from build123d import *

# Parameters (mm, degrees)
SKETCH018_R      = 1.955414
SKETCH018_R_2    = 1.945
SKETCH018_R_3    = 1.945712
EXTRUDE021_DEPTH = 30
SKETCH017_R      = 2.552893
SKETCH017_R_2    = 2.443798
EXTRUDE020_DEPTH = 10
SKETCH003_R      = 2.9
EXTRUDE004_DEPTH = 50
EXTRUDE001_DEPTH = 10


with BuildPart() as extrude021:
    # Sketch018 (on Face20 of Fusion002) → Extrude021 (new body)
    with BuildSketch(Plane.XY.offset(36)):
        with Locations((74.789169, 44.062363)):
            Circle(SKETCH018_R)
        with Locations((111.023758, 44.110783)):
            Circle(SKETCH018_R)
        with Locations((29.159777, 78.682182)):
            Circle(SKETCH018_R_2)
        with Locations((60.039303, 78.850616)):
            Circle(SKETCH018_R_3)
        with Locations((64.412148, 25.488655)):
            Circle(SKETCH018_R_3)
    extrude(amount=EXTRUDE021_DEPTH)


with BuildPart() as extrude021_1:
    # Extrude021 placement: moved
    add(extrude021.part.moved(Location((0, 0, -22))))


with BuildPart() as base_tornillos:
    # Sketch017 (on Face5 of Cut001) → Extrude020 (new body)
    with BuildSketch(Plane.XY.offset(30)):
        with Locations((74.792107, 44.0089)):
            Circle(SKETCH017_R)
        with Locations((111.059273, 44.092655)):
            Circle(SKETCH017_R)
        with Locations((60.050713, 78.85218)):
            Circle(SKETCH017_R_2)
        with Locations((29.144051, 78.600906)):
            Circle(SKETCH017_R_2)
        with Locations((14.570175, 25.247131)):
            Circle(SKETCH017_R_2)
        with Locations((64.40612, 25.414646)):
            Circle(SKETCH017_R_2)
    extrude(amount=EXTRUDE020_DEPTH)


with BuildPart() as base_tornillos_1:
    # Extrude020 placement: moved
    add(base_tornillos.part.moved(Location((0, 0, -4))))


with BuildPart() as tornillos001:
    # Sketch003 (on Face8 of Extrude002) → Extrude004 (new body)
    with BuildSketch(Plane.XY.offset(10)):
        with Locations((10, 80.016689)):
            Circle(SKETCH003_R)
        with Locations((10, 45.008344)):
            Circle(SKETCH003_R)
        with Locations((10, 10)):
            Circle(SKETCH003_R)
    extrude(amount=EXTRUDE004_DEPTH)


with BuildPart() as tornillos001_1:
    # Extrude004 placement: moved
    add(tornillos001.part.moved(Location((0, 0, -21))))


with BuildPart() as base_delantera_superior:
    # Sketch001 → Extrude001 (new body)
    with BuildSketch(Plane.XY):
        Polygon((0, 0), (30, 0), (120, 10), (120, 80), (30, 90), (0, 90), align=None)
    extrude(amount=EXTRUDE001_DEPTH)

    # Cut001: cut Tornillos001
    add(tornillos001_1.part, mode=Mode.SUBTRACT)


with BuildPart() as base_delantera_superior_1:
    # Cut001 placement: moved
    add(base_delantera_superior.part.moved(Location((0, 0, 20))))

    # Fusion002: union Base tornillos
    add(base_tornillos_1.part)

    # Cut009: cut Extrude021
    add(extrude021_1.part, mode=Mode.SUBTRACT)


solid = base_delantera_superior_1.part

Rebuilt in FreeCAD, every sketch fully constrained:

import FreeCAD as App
import Part
import Sketcher
Q = App.Units.Quantity


def add_polygon(sketch, points):
    """Adds a closed chain of lines whose ends are joined by coincident constraints."""
    first, n = sketch.GeometryCount, len(points)
    for a, b in zip(points, points[1:] + points[:1]):
        sketch.addGeometry(Part.LineSegment(App.Vector(*a, 0), App.Vector(*b, 0)), False)
    for i in range(n):
        sketch.addConstraint(Sketcher.Constraint("Coincident", first + i, 2, first + (i + 1) % n, 1))

doc = App.newDocument("Part")
params = doc.addObject("Spreadsheet::Sheet", "Params")
for row, (alias, value) in enumerate([
    ("sketch1_diameter", "3.89 mm"),
    ("pad1_length", "30 mm"),
    ("pad2_length", "10 mm"),
    ("sketch3_diameter", "5.8 mm"),
    ("pad3_length", "50 mm"),
    ("sketch4_width", "30 mm"),
    ("sketch4_height", "70 mm"),
    ("sketch4_height2", "90 mm"),
    ("pad4_length", "10 mm"),
], start=1):
    params.set(f"A{row}", alias)
    params.set(f"B{row}", "=" + value)
    params.setAlias(f"B{row}", alias)

body = doc.addObject("PartDesign::Body", "Body")
body.AllowCompound = True

sketch1 = body.newObject("Sketcher::SketchObject", "Sketch")
sketch1.AttachmentSupport = (doc.getObject("XY_Plane"), [""])
sketch1.MapMode = "FlatFace"
sketch1.AttachmentOffset = App.Placement(App.Vector(0, 0, 36), App.Rotation())
sketch1.addGeometry([
    Part.Circle(App.Vector(74.789169, 44.062363, 0), App.Vector(0, 0, 1), 1.955414),
    Part.Circle(App.Vector(111.023758, 44.110783, 0), App.Vector(0, 0, 1), 1.955414),
    Part.Circle(App.Vector(29.159777, 78.682182, 0), App.Vector(0, 0, 1), 1.945),
    Part.Circle(App.Vector(60.039303, 78.850616, 0), App.Vector(0, 0, 1), 1.945712),
    Part.Circle(App.Vector(64.412148, 25.488655, 0), App.Vector(0, 0, 1), 1.945712),
], False)
sketch1.addConstraint([
    Sketcher.Constraint("Equal", 0, 1),
    Sketcher.Constraint("Equal", 3, 4),
    Sketcher.Constraint("Diameter", 2, Q("3.89 mm")),
    Sketcher.Constraint("Diameter", 0, Q("3.910828 mm")),
    Sketcher.Constraint("Diameter", 3, Q("3.891424 mm")),
    Sketcher.Constraint("DistanceY", 1, 3, 2, 3, Q("34.571399 mm")),
    Sketcher.Constraint("DistanceX", -1, 1, 0, 3, Q("74.789169 mm")),
    Sketcher.Constraint("DistanceX", -1, 1, 1, 3, Q("111.023758 mm")),
    Sketcher.Constraint("DistanceY", -1, 1, 2, 3, Q("78.682182 mm")),
    Sketcher.Constraint("DistanceX", -1, 1, 4, 3, Q("64.412148 mm")),
    Sketcher.Constraint("DistanceY", 0, 3, 1, 3, Q("0.04842 mm")),
    Sketcher.Constraint("DistanceX", 2, 3, 1, 3, Q("81.863981 mm")),
    Sketcher.Constraint("DistanceY", 4, 3, 3, 3, Q("53.361961 mm")),
    Sketcher.Constraint("DistanceX", -1, 1, 3, 3, Q("60.039303 mm")),
    Sketcher.Constraint("DistanceY", -1, 1, 3, 3, Q("78.850616 mm")),
])
sketch1.setExpression("Constraints[2]", "Params.sketch1_diameter")
pad1 = body.newObject("PartDesign::Pad", "Pad")
pad1.Profile = sketch1
pad1.setExpression("Length", "Params.pad1_length")
body2 = doc.addObject("PartDesign::Body", "Body001")
body2.AllowCompound = True
doc.recompute()

body.Placement = App.Placement(App.Vector(0, 0, -22), App.Rotation(App.Vector(0, 0, 1), 0))
boolean = body2.newObject("PartDesign::Boolean", "Boolean")
boolean.Type = "Fuse"
boolean.addObjects([body])
body3 = doc.addObject("PartDesign::Body", "Body002")
body3.AllowCompound = True

sketch2 = body3.newObject("Sketcher::SketchObject", "Sketch001")
sketch2.AttachmentSupport = (doc.getObject("XY_Plane002"), [""])
sketch2.MapMode = "FlatFace"
sketch2.AttachmentOffset = App.Placement(App.Vector(0, 0, 30), App.Rotation())
sketch2.addGeometry([
    Part.Circle(App.Vector(74.792107, 44.0089, 0), App.Vector(0, 0, 1), 2.552893),
    Part.Circle(App.Vector(111.059273, 44.092655, 0), App.Vector(0, 0, 1), 2.552893),
    Part.Circle(App.Vector(60.050713, 78.85218, 0), App.Vector(0, 0, 1), 2.443798),
    Part.Circle(App.Vector(29.144051, 78.600906, 0), App.Vector(0, 0, 1), 2.443798),
    Part.Circle(App.Vector(14.570175, 25.247131, 0), App.Vector(0, 0, 1), 2.443798),
    Part.Circle(App.Vector(64.40612, 25.414646, 0), App.Vector(0, 0, 1), 2.443798),
], False)
sketch2.addConstraint([
    Sketcher.Constraint("Equal", 0, 1),
    Sketcher.Constraint("Equal", 2, 3),
    Sketcher.Constraint("Equal", 3, 4),
    Sketcher.Constraint("Equal", 4, 5),
    Sketcher.Constraint("Diameter", 0, Q("5.105786 mm")),
    Sketcher.Constraint("Diameter", 2, Q("4.887596 mm")),
    Sketcher.Constraint("DistanceY", -1, 1, 0, 3, Q("44.0089 mm")),
    Sketcher.Constraint("DistanceX", 4, 3, 1, 3, Q("96.489098 mm")),
    Sketcher.Constraint("DistanceY", -1, 1, 2, 3, Q("78.85218 mm")),
    Sketcher.Constraint("DistanceX", -1, 1, 3, 3, Q("29.144051 mm")),
    Sketcher.Constraint("DistanceY", -1, 1, 4, 3, Q("25.247131 mm")),
    Sketcher.Constraint("DistanceX", -1, 1, 5, 3, Q("64.40612 mm")),
    Sketcher.Constraint("DistanceX", 2, 3, 1, 3, Q("51.00856 mm")),
    Sketcher.Constraint("DistanceX", 3, 3, 1, 3, Q("81.915222 mm")),
    Sketcher.Constraint("DistanceY", 1, 3, 3, 3, Q("34.508251 mm")),
    Sketcher.Constraint("DistanceY", 5, 3, 1, 3, Q("18.678009 mm")),
    Sketcher.Constraint("DistanceX", -1, 1, 0, 3, Q("74.792107 mm")),
    Sketcher.Constraint("DistanceY", -1, 1, 1, 3, Q("44.092655 mm")),
])
pad2 = body3.newObject("PartDesign::Pad", "Pad001")
pad2.Profile = sketch2
pad2.setExpression("Length", "Params.pad2_length")
body4 = doc.addObject("PartDesign::Body", "Body003")
body4.AllowCompound = True
doc.recompute()

body3.Placement = App.Placement(App.Vector(0, 0, -4), App.Rotation(App.Vector(0, 0, 1), 0))
boolean2 = body4.newObject("PartDesign::Boolean", "Boolean001")
boolean2.Type = "Fuse"
boolean2.addObjects([body3])
body5 = doc.addObject("PartDesign::Body", "Body004")
body5.AllowCompound = True

sketch3 = body5.newObject("Sketcher::SketchObject", "Sketch002")
sketch3.AttachmentSupport = (doc.getObject("XY_Plane004"), [""])
sketch3.MapMode = "FlatFace"
sketch3.AttachmentOffset = App.Placement(App.Vector(0, 0, 10), App.Rotation())
sketch3.addGeometry([
    Part.Circle(App.Vector(10, 80.016689, 0), App.Vector(0, 0, 1), 2.9),
    Part.Circle(App.Vector(10, 45.008344, 0), App.Vector(0, 0, 1), 2.9),
    Part.Circle(App.Vector(10, 10, 0), App.Vector(0, 0, 1), 2.9),
], False)
sketch3.addConstraint([
    Sketcher.Constraint("Equal", 0, 1),
    Sketcher.Constraint("Equal", 1, 2),
    Sketcher.Constraint("Vertical", 0, 3, 1, 3),
    Sketcher.Constraint("Vertical", 1, 3, 2, 3),
    Sketcher.Constraint("Diameter", 0, Q("5.8 mm")),
    Sketcher.Constraint("DistanceX", -1, 1, 0, 3, Q("10 mm")),
    Sketcher.Constraint("DistanceY", -1, 1, 2, 3, Q("10 mm")),
    Sketcher.Constraint("DistanceY", -1, 1, 0, 3, Q("80.016689 mm")),
    Sketcher.Constraint("DistanceY", -1, 1, 1, 3, Q("45.008344 mm")),
])
sketch3.setExpression("Constraints[4]", "Params.sketch3_diameter")
pad3 = body5.newObject("PartDesign::Pad", "Pad002")
pad3.Profile = sketch3
pad3.setExpression("Length", "Params.pad3_length")
body6 = doc.addObject("PartDesign::Body", "Body005")
body6.AllowCompound = True
doc.recompute()

body5.Placement = App.Placement(App.Vector(0, 0, -21), App.Rotation(App.Vector(0, 0, 1), 0))
boolean3 = body6.newObject("PartDesign::Boolean", "Boolean002")
boolean3.Type = "Fuse"
boolean3.addObjects([body5])
body7 = doc.addObject("PartDesign::Body", "Body006")

sketch4 = body7.newObject("Sketcher::SketchObject", "Sketch003")
sketch4.AttachmentSupport = (doc.getObject("XY_Plane006"), [""])
sketch4.MapMode = "FlatFace"
add_polygon(sketch4, [(0, 0), (30, 0), (120, 10), (120, 80), (30, 90), (0, 90)])
sketch4.addConstraint([
    Sketcher.Constraint("Horizontal", 0),
    Sketcher.Constraint("Vertical", 2),
    Sketcher.Constraint("Horizontal", 4),
    Sketcher.Constraint("Vertical", 5),
    Sketcher.Constraint("Coincident", 5, 2, -1, 1),
    Sketcher.Constraint("Vertical", 0, 2, 3, 2),
    Sketcher.Constraint("Equal", 1, 3),
    Sketcher.Constraint("DistanceX", 0, 1, 0, 2, Q("30 mm")),
    Sketcher.Constraint("DistanceY", 2, 1, 2, 2, Q("70 mm")),
    Sketcher.Constraint("DistanceY", 5, 2, 5, 1, Q("90 mm")),
    Sketcher.Constraint("DistanceX", -1, 1, 1, 2, Q("120 mm")),
])
sketch4.setExpression("Constraints[13]", "Params.sketch4_width")
sketch4.setExpression("Constraints[14]", "Params.sketch4_height")
sketch4.setExpression("Constraints[15]", "Params.sketch4_height2")
pad4 = body7.newObject("PartDesign::Pad", "Pad003")
pad4.Profile = sketch4
pad4.setExpression("Length", "Params.pad4_length")
doc.recompute()

boolean4 = body7.newObject("PartDesign::Boolean", "Boolean003")
boolean4.Type = "Cut"
boolean4.addObjects([body6])
body8 = doc.addObject("PartDesign::Body", "Body007")
doc.recompute()

body7.Placement = App.Placement(App.Vector(0, 0, 20), App.Rotation(App.Vector(0, 0, 1), 0))
boolean5 = body8.newObject("PartDesign::Boolean", "Boolean004")
boolean5.Type = "Fuse"
boolean5.addObjects([body7])
doc.recompute()

boolean6 = body8.newObject("PartDesign::Boolean", "Boolean005")
boolean6.Type = "Fuse"
boolean6.addObjects([body4])
doc.recompute()

boolean7 = body8.newObject("PartDesign::Boolean", "Boolean006")
boolean7.Type = "Cut"
boolean7.addObjects([body2])

doc.recompute()
